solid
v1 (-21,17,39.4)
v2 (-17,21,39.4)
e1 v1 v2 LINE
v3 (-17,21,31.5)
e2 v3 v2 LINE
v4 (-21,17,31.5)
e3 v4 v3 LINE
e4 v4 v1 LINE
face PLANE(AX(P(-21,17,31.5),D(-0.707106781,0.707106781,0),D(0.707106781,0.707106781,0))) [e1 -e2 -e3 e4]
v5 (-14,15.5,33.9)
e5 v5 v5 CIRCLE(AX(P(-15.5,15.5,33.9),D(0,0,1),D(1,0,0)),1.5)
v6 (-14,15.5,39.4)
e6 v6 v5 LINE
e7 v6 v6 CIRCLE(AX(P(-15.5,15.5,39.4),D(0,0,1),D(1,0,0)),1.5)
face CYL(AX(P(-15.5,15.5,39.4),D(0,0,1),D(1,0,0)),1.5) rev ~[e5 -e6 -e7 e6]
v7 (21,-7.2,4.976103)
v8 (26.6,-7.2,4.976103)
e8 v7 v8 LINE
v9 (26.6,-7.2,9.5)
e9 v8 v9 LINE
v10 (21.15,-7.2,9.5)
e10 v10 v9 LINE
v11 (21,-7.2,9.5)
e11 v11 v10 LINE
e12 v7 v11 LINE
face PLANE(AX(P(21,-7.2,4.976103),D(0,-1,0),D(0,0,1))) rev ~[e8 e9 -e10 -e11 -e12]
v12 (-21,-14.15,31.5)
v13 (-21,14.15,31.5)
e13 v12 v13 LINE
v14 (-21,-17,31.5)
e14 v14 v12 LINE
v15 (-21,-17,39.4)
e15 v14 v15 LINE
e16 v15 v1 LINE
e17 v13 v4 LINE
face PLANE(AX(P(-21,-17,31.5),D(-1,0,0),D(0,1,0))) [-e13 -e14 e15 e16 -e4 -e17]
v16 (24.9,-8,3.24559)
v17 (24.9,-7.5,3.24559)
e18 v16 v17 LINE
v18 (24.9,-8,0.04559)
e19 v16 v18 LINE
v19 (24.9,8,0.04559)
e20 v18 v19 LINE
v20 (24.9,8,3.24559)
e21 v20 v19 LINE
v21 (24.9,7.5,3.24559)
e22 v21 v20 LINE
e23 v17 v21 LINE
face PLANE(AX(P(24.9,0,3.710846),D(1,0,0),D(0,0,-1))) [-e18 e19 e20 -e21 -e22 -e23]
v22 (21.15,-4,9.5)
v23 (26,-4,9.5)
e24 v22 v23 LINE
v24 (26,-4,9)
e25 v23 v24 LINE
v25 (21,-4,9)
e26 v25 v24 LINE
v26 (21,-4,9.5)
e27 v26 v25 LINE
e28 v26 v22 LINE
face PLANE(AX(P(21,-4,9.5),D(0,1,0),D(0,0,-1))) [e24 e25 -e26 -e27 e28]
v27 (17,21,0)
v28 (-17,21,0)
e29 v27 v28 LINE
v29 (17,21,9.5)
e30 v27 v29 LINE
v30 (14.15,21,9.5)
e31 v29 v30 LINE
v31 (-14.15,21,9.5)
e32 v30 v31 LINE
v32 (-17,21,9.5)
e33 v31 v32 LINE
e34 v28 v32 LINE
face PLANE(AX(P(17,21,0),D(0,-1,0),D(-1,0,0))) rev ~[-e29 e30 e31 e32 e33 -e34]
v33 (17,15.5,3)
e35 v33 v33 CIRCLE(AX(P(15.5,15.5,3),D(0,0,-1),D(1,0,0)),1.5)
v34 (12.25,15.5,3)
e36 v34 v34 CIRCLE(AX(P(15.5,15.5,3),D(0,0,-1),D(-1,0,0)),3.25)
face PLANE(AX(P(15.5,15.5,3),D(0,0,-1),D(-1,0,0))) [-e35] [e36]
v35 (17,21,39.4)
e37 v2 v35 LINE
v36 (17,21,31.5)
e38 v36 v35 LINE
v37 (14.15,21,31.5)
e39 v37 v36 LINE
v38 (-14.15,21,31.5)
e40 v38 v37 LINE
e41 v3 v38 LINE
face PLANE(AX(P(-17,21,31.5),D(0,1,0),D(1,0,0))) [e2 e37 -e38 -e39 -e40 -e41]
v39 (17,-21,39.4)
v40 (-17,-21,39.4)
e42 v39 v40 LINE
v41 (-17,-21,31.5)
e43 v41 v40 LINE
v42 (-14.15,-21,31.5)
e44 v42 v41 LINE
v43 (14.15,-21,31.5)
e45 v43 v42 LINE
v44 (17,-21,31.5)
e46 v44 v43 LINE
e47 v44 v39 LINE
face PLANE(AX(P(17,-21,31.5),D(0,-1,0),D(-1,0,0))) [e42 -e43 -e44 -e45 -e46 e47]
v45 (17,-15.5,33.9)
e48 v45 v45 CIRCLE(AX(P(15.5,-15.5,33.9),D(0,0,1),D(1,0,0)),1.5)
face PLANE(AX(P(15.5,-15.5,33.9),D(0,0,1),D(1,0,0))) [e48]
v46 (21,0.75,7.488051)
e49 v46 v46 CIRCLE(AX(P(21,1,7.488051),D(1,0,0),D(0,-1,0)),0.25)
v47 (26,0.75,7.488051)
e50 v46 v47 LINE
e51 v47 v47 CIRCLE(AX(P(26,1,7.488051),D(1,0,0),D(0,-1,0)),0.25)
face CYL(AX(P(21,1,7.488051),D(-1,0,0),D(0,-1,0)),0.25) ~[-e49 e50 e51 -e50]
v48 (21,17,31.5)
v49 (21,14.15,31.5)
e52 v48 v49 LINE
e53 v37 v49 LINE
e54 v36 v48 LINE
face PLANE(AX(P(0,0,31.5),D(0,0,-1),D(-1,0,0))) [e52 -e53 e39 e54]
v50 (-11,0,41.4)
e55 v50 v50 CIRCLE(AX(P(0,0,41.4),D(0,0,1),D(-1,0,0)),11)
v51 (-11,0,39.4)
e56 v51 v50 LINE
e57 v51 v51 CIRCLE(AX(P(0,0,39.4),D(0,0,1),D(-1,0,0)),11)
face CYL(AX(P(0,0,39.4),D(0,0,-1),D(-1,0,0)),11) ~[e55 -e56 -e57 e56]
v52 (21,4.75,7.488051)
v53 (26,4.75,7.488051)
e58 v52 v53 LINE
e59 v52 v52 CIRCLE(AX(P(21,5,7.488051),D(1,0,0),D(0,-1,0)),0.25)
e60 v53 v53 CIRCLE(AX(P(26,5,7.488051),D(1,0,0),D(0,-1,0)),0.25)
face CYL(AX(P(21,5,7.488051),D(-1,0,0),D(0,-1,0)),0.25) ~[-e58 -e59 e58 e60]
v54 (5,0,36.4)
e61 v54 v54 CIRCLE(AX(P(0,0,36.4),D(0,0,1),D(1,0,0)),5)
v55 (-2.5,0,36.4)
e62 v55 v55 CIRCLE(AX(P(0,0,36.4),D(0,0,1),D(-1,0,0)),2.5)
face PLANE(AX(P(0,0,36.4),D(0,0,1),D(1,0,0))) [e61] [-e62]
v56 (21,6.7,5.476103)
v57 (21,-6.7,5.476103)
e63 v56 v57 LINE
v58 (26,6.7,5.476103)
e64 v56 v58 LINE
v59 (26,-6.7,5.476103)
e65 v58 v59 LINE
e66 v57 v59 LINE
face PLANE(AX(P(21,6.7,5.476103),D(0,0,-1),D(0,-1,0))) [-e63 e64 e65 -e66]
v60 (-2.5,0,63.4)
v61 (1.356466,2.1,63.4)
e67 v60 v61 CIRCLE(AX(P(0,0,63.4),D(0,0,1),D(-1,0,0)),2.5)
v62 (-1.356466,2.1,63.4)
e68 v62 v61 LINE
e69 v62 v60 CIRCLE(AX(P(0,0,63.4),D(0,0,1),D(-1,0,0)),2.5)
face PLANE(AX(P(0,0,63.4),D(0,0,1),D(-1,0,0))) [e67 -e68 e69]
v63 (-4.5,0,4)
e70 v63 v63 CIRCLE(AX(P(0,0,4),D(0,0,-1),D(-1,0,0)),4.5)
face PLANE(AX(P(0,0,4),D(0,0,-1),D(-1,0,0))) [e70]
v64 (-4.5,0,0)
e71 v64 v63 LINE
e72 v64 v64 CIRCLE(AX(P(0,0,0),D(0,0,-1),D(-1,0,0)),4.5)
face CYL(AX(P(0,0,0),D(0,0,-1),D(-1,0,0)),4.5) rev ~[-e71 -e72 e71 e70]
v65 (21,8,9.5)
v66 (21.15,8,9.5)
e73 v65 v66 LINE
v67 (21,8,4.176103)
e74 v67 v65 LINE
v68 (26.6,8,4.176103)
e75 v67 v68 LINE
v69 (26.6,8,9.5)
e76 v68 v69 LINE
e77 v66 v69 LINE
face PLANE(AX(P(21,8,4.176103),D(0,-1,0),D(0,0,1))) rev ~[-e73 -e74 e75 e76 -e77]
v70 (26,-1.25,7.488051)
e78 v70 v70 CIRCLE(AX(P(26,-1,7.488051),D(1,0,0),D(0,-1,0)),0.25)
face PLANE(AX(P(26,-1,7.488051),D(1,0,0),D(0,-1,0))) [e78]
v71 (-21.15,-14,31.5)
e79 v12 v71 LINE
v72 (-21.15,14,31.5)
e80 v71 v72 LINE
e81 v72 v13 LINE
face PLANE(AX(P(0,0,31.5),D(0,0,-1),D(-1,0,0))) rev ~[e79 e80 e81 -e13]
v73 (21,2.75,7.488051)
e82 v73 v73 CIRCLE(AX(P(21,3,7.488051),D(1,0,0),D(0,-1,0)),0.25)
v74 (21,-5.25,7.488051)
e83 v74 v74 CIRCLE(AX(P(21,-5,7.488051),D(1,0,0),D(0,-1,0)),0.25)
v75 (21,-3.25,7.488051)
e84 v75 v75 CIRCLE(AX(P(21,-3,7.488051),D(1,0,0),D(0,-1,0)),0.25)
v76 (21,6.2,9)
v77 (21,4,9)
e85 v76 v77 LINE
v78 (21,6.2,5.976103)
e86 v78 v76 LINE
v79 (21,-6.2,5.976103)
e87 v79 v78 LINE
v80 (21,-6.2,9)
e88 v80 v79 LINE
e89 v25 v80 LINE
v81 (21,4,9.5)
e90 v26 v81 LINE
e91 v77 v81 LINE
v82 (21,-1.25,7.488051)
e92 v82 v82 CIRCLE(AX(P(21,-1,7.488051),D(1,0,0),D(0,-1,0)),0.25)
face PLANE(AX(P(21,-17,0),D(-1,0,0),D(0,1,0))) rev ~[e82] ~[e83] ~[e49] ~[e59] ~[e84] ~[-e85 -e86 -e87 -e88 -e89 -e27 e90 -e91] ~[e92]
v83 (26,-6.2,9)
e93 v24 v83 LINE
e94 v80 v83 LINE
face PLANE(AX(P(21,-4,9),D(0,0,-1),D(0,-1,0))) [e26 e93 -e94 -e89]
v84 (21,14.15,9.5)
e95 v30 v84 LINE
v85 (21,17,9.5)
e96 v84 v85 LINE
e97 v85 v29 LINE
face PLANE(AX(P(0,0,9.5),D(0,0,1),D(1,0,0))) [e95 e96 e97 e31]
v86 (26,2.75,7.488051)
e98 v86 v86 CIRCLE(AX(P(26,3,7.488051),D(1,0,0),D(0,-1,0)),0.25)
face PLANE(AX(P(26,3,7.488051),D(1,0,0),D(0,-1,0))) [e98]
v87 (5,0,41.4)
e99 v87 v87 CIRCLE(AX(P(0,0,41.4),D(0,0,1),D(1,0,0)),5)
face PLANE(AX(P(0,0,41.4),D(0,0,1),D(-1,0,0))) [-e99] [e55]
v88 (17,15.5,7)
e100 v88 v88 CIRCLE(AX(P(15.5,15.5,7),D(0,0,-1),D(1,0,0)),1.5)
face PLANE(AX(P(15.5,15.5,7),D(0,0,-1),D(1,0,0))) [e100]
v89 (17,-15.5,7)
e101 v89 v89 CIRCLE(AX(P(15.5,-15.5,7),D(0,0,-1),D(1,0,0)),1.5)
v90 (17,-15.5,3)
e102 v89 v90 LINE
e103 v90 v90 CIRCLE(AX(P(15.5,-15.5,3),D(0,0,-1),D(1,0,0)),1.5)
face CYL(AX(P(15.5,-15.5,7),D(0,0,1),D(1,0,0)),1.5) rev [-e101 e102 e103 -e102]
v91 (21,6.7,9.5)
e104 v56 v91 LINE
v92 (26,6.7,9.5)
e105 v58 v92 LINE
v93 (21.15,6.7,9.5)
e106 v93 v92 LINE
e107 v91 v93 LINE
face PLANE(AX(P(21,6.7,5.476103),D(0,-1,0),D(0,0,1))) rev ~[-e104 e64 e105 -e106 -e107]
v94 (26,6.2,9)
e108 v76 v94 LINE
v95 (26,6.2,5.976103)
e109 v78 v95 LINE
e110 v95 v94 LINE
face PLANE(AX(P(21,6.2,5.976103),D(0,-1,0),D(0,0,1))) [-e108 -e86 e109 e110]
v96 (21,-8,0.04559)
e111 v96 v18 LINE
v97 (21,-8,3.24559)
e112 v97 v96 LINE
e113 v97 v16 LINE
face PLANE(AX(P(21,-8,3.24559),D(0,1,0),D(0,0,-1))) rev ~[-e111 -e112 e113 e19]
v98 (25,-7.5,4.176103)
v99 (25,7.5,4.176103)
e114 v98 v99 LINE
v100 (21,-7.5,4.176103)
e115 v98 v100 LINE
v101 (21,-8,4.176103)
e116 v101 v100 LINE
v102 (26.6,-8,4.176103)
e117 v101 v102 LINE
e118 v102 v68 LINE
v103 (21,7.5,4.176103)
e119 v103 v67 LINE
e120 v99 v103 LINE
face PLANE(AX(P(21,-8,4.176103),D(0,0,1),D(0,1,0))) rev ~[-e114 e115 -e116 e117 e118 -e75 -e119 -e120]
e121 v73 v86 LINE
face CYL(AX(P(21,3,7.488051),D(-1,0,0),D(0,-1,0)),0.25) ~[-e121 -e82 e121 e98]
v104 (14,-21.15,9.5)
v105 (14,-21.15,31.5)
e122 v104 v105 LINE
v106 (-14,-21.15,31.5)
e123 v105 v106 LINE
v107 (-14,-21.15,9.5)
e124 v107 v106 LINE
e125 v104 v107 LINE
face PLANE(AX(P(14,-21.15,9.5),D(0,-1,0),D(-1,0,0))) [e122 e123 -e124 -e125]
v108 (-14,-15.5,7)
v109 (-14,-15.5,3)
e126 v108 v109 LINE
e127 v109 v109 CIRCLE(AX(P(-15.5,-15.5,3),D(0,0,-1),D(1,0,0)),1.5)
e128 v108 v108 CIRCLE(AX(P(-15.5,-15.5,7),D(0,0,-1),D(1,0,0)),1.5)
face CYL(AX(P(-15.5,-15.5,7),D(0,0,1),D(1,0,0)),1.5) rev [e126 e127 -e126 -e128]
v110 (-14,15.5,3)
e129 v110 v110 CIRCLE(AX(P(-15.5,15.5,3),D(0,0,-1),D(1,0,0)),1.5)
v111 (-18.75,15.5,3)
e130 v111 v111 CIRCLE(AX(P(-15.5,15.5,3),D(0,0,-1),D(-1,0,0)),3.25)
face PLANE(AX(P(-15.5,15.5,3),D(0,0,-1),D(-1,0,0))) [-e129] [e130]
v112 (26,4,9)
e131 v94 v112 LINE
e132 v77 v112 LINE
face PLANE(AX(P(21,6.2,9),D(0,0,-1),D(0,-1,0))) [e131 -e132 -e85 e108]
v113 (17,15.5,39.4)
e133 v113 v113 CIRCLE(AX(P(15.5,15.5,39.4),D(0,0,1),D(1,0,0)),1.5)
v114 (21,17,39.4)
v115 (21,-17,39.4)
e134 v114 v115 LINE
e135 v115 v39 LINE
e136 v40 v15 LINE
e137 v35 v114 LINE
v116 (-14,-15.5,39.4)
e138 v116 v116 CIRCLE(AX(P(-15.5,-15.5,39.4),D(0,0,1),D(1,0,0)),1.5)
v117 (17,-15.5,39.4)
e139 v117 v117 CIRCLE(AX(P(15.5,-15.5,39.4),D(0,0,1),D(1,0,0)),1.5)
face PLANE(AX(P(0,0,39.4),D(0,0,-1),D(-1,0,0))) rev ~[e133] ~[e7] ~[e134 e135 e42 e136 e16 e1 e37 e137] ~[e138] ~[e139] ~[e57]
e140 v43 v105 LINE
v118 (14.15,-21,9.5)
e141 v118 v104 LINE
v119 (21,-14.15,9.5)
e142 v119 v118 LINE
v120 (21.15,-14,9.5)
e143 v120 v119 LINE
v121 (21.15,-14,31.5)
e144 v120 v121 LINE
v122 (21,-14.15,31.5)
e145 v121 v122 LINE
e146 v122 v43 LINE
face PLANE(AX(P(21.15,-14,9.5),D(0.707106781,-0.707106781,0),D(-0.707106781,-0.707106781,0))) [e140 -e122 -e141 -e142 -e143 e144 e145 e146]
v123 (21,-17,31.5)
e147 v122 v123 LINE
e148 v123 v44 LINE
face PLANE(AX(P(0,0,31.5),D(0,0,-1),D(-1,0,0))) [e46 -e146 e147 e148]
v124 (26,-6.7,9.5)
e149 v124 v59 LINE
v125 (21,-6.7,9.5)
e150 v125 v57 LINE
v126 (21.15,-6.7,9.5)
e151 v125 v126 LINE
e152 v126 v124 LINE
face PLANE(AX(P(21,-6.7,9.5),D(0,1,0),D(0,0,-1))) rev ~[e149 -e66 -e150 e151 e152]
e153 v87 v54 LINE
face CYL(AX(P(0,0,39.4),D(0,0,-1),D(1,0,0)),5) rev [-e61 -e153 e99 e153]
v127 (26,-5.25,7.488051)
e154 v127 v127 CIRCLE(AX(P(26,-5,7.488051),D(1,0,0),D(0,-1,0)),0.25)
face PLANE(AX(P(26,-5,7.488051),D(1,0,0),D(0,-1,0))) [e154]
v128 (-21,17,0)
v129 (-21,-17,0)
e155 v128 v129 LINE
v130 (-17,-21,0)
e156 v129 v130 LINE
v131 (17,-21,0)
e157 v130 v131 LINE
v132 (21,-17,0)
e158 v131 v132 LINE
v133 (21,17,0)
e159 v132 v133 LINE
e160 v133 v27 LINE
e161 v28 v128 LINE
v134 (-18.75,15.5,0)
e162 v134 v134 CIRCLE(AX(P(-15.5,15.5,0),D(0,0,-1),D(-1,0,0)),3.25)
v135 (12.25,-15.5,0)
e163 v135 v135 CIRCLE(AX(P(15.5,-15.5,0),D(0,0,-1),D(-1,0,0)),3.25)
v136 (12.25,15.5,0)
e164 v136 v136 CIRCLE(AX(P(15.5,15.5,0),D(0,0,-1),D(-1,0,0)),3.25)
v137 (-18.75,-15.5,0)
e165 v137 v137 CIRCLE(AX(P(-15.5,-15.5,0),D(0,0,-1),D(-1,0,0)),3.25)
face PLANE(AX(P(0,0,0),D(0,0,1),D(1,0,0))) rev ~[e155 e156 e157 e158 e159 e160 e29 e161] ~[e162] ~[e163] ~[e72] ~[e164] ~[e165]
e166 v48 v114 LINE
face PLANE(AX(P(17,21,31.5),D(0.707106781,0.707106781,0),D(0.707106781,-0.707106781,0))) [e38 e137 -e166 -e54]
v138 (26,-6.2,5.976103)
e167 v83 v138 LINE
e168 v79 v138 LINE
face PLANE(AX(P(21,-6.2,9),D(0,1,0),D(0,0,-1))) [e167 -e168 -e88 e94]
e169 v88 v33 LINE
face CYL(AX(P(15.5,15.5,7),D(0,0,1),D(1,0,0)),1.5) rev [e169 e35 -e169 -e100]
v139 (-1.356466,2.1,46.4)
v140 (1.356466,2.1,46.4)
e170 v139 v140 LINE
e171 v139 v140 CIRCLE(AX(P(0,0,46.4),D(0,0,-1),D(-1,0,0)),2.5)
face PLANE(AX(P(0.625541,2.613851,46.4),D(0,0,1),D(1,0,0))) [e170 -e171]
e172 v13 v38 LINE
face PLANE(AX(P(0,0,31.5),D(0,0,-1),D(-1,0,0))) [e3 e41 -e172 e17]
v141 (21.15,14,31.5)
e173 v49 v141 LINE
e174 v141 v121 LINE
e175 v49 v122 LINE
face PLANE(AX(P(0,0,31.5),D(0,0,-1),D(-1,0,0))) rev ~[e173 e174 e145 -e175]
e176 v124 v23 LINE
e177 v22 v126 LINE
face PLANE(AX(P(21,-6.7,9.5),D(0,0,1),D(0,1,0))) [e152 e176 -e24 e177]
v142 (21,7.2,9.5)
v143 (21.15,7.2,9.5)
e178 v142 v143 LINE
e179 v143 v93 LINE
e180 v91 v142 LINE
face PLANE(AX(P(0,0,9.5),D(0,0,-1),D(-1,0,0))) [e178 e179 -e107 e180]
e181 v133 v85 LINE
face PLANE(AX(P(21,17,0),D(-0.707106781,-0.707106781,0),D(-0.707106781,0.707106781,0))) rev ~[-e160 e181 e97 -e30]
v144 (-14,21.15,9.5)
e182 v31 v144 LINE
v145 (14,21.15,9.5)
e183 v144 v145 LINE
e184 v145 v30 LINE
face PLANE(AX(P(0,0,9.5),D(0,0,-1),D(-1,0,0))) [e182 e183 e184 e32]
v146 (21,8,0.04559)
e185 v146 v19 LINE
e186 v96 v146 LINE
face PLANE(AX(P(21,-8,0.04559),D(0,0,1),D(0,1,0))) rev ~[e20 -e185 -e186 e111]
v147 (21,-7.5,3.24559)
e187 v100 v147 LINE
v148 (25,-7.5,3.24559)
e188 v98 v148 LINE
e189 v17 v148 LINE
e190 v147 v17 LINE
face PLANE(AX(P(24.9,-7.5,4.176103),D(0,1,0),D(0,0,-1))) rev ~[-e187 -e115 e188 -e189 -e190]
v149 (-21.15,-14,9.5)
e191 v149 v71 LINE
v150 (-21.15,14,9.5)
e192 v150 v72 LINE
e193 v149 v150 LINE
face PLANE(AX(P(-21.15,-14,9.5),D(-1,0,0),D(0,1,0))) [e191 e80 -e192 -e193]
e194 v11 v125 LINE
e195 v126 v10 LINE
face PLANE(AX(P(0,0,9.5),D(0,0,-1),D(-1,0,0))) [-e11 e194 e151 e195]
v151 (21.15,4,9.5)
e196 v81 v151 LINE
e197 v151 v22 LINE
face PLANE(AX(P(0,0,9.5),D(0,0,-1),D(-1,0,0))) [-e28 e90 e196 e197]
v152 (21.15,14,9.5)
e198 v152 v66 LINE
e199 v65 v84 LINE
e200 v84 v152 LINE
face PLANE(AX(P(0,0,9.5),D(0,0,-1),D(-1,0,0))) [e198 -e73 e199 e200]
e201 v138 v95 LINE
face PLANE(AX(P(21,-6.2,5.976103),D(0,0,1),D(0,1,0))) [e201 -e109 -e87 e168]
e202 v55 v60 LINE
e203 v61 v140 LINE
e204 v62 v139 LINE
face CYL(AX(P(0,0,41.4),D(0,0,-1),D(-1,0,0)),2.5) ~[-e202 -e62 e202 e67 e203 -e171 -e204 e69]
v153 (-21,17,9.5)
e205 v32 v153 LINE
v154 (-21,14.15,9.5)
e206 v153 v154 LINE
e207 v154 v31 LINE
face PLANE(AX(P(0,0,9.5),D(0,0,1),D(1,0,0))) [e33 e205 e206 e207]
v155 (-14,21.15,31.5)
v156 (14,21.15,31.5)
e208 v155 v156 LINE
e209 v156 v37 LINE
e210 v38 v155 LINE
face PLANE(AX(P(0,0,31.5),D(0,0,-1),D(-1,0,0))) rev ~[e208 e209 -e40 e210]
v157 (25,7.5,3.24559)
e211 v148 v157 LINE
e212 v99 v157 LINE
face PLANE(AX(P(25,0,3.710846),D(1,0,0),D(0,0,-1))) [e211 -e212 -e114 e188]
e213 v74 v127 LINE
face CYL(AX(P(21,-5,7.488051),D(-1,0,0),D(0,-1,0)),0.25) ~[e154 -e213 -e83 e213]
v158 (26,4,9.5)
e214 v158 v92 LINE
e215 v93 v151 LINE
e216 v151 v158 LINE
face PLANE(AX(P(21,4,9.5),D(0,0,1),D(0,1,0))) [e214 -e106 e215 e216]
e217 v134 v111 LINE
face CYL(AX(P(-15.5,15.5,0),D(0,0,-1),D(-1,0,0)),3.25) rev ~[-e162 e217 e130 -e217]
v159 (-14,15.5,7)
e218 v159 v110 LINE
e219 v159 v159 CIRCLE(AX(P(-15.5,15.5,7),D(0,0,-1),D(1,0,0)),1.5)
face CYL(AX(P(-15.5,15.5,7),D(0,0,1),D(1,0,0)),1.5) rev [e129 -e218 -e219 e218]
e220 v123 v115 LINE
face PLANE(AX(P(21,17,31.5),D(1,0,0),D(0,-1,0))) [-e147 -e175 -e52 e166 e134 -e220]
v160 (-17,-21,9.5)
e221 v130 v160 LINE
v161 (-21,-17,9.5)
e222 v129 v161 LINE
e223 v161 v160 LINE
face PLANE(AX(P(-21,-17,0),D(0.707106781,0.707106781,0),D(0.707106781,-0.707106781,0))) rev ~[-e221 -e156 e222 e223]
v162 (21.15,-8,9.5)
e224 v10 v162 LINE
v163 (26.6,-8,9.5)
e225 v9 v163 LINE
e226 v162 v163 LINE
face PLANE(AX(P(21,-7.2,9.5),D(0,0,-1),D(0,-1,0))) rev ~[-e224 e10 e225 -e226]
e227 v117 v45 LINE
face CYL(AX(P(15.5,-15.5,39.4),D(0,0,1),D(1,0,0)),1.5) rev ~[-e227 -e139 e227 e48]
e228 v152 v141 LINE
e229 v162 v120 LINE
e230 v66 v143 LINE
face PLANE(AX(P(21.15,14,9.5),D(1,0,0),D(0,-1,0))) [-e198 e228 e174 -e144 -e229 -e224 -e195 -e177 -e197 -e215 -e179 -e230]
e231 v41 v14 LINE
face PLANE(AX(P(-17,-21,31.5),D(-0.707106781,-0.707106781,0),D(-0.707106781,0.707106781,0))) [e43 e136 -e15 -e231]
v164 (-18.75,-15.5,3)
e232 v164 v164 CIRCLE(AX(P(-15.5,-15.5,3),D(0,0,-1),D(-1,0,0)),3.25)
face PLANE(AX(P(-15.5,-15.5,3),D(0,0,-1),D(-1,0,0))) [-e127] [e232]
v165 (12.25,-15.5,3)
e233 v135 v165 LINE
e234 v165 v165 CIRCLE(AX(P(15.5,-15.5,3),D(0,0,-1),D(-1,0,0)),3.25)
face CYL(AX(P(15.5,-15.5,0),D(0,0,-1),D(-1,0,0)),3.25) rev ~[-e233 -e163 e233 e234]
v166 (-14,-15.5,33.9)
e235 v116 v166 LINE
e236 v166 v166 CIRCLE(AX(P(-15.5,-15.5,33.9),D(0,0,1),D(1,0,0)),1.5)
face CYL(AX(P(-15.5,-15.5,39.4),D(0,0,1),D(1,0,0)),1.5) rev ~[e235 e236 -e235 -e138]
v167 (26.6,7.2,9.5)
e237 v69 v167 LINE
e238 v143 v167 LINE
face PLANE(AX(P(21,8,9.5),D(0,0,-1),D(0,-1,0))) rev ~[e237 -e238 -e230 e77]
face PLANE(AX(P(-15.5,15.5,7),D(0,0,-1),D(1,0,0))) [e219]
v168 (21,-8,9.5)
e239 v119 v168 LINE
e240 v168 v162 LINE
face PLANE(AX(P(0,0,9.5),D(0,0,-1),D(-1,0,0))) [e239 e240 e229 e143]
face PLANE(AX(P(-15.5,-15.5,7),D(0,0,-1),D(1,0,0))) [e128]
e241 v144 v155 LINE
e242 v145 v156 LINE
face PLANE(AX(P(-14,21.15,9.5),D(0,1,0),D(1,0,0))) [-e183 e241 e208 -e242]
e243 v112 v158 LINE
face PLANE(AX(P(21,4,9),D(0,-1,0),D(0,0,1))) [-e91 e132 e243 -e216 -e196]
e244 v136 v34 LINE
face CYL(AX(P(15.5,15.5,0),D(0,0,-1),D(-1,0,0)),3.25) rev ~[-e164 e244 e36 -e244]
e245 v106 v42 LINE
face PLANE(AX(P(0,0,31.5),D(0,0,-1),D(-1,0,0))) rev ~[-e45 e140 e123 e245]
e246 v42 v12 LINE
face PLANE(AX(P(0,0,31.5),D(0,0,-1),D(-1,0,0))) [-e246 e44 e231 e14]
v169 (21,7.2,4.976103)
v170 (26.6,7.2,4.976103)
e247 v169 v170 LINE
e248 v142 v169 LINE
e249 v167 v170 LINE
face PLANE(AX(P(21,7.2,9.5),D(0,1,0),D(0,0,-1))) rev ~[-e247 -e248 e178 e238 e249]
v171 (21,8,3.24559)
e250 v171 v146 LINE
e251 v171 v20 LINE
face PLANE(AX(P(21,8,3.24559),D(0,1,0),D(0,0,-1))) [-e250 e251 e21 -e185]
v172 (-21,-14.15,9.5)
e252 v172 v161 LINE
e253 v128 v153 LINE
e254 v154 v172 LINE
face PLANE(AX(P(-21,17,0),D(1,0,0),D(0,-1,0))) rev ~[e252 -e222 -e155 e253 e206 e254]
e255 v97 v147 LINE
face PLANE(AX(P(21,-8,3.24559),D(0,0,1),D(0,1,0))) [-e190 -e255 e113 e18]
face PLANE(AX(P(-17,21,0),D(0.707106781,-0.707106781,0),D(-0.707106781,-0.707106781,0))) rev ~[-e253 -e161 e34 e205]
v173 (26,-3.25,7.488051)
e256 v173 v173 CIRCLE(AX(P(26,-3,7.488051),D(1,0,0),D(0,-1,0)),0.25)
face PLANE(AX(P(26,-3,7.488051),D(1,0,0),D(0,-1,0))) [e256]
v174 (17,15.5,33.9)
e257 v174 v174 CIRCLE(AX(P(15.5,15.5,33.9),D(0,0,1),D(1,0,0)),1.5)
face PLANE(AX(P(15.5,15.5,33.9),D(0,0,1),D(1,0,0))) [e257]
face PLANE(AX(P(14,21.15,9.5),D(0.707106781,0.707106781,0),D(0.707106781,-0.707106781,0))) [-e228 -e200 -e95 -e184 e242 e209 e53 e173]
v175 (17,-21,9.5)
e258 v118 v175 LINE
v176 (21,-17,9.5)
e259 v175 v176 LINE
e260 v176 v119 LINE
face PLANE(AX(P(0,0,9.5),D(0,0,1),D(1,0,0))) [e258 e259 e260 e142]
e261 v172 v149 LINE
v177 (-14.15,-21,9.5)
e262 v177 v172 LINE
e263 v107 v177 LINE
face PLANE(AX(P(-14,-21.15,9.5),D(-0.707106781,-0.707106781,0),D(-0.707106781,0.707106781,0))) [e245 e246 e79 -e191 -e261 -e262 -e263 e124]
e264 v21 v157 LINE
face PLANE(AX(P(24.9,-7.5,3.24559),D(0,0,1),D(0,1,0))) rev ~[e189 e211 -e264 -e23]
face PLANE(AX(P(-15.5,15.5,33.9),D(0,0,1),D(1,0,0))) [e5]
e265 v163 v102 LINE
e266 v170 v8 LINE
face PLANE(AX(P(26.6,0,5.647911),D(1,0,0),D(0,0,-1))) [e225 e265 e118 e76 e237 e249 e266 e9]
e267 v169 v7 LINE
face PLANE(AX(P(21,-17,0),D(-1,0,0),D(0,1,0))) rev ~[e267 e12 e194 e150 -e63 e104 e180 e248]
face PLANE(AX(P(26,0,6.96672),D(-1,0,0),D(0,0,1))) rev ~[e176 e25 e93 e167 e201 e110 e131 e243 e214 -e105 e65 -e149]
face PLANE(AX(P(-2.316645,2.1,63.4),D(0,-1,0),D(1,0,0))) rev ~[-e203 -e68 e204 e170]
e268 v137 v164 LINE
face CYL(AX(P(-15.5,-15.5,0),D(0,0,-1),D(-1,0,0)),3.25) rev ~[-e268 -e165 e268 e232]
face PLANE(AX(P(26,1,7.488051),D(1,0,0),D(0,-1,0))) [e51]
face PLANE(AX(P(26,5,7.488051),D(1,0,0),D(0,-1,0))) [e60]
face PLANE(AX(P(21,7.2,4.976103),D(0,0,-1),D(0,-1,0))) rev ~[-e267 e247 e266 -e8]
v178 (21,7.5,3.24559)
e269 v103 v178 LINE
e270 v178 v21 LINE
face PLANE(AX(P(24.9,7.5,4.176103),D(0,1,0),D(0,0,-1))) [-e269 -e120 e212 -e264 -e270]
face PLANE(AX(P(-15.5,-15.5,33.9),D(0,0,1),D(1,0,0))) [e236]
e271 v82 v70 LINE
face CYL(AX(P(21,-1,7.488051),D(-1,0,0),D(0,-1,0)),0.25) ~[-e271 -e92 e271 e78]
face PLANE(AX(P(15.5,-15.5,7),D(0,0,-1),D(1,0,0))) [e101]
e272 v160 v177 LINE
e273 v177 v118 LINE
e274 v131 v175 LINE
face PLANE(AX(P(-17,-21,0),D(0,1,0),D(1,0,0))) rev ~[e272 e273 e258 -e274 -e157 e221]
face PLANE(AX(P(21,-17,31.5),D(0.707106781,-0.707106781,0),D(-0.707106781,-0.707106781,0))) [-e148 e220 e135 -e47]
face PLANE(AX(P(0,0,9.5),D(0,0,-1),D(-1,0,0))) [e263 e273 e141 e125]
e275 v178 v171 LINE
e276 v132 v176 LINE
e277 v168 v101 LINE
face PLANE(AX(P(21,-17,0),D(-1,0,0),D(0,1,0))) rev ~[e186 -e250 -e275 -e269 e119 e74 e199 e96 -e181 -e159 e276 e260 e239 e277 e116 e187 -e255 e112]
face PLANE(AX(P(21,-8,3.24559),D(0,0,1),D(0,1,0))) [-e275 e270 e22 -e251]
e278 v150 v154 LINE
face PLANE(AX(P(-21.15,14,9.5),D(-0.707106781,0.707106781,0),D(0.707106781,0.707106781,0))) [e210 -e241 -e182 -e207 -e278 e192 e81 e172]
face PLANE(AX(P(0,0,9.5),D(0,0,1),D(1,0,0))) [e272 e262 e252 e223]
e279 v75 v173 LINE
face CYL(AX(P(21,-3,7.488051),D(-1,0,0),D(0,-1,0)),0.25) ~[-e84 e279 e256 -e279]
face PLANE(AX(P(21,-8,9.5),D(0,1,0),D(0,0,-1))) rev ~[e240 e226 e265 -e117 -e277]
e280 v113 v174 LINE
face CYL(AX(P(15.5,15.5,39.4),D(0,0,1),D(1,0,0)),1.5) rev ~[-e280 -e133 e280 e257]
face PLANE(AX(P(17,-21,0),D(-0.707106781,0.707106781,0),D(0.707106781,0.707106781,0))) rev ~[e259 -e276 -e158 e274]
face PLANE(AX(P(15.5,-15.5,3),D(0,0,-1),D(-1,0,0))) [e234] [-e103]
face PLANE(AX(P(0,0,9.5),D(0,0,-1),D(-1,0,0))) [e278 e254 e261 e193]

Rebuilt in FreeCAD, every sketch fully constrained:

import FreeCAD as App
import Part
import Sketcher
Q = App.Units.Quantity

doc = App.newDocument("Part")
body = doc.addObject("PartDesign::Body", "Body")

sketch1 = body.newObject("Sketcher::SketchObject", "Sketch")
sketch1.AttachmentSupport = (doc.getObject("XY_Plane"), [""])
sketch1.MapMode = "FlatFace"
sketch1.addGeometry([
    Part.LineSegment(App.Vector(-17, 21, 0), App.Vector(-21, 17, 0)),
    Part.LineSegment(App.Vector(-21, 17, 0), App.Vector(-21, -17, 0)),
    Part.LineSegment(App.Vector(-21, -17, 0), App.Vector(-17, -21, 0)),
    Part.LineSegment(App.Vector(-17, -21, 0), App.Vector(17, -21, 0)),
    Part.LineSegment(App.Vector(17, -21, 0), App.Vector(21, -17, 0)),
    Part.LineSegment(App.Vector(21, -17, 0), App.Vector(21, 17, 0)),
    Part.LineSegment(App.Vector(21, 17, 0), App.Vector(17, 21, 0)),
    Part.LineSegment(App.Vector(17, 21, 0), App.Vector(-17, 21, 0)),
], False)
sketch1.addConstraint([
    Sketcher.Constraint("Coincident", 0, 2, 1, 1),
    Sketcher.Constraint("Coincident", 1, 2, 2, 1),
    Sketcher.Constraint("Coincident", 2, 2, 3, 1),
    Sketcher.Constraint("Coincident", 3, 2, 4, 1),
    Sketcher.Constraint("Coincident", 4, 2, 5, 1),
    Sketcher.Constraint("Coincident", 5, 2, 6, 1),
    Sketcher.Constraint("Coincident", 6, 2, 7, 1),
    Sketcher.Constraint("Coincident", 7, 2, 0, 1),
    Sketcher.Constraint("Vertical", 1),
    Sketcher.Constraint("Horizontal", 3),
    Sketcher.Constraint("Vertical", 5),
    Sketcher.Constraint("Horizontal", 7),
    Sketcher.Constraint("Symmetric", 0, 2, 4, 2, -1, 1),
    Sketcher.Constraint("Symmetric", 2, 2, 6, 2, -1, 1),
    Sketcher.Constraint("Perpendicular", 0, 2),
    Sketcher.Constraint("Perpendicular", 2, 4),
    Sketcher.Constraint("Perpendicular", 4, 6),
    Sketcher.Constraint("Horizontal", 1, 2, 4, 2),
    Sketcher.Constraint("Vertical", 3, 2, 6, 2),
    Sketcher.Constraint("Equal", 7, 1),
    Sketcher.Constraint("DistanceX", 3, 1, 3, 2, Q("34 mm")),
    Sketcher.Constraint("DistanceX", 0, 2, -1, 1, Q("21 mm")),
])
pad1 = body.newObject("PartDesign::Pad", "Pad")
pad1.Profile = sketch1
pad1.Length = 9.5

sketch2 = body.newObject("Sketcher::SketchObject", "Sketch001")
sketch2.AttachmentSupport = (doc.getObject("XY_Plane"), [""])
sketch2.MapMode = "FlatFace"
sketch2.AttachmentOffset = App.Placement(App.Vector(0, 0, 9.5), App.Rotation())
sketch2.addGeometry([
    Part.LineSegment(App.Vector(21.15, 14, 0), App.Vector(14, 21.15, 0)),
    Part.LineSegment(App.Vector(14, 21.15, 0), App.Vector(-14, 21.15, 0)),
    Part.LineSegment(App.Vector(-14, 21.15, 0), App.Vector(-21.15, 14, 0)),
    Part.LineSegment(App.Vector(-21.15, 14, 0), App.Vector(-21.15, -14, 0)),
    Part.LineSegment(App.Vector(-21.15, -14, 0), App.Vector(-14, -21.15, 0)),
    Part.LineSegment(App.Vector(-14, -21.15, 0), App.Vector(14, -21.15, 0)),
    Part.LineSegment(App.Vector(14, -21.15, 0), App.Vector(21.15, -14, 0)),
    Part.LineSegment(App.Vector(21.15, -14, 0), App.Vector(21.15, 14, 0)),
], False)
sketch2.addConstraint([
    Sketcher.Constraint("Coincident", 0, 2, 1, 1),
    Sketcher.Constraint("Coincident", 1, 2, 2, 1),
    Sketcher.Constraint("Coincident", 2, 2, 3, 1),
    Sketcher.Constraint("Coincident", 3, 2, 4, 1),
    Sketcher.Constraint("Coincident", 4, 2, 5, 1),
    Sketcher.Constraint("Coincident", 5, 2, 6, 1),
    Sketcher.Constraint("Coincident", 6, 2, 7, 1),
    Sketcher.Constraint("Coincident", 7, 2, 0, 1),
    Sketcher.Constraint("Horizontal", 1),
    Sketcher.Constraint("Vertical", 3),
    Sketcher.Constraint("Horizontal", 5),
    Sketcher.Constraint("Vertical", 7),
    Sketcher.Constraint("Symmetric", 0, 2, 4, 2, -1, 1),
    Sketcher.Constraint("Symmetric", 2, 2, 6, 2, -1, 1),
    Sketcher.Constraint("Perpendicular", 0, 2),
    Sketcher.Constraint("Perpendicular", 2, 4),
    Sketcher.Constraint("Perpendicular", 4, 6),
    Sketcher.Constraint("Horizontal", 3, 2, 6, 2),
    Sketcher.Constraint("Vertical", 1, 2, 4, 2),
    Sketcher.Constraint("Equal", 5, 3),
    Sketcher.Constraint("DistanceX", 1, 2, 1, 1, Q("28 mm")),
    Sketcher.Constraint("DistanceY", 4, 2, 1, 2, Q("42.3 mm")),
])
pad2 = body.newObject("PartDesign::Pad", "Pad001")
pad2.Profile = sketch2
pad2.Length = 22

sketch3 = body.newObject("Sketcher::SketchObject", "Sketch002")
sketch3.AttachmentSupport = (doc.getObject("XY_Plane"), [""])
sketch3.MapMode = "FlatFace"
sketch3.AttachmentOffset = App.Placement(App.Vector(0, 0, 31.5), App.Rotation())
sketch3.addGeometry([
    Part.LineSegment(App.Vector(17, 21, 0), App.Vector(-17, 21, 0)),
    Part.LineSegment(App.Vector(-17, 21, 0), App.Vector(-21, 17, 0)),
    Part.LineSegment(App.Vector(-21, 17, 0), App.Vector(-21, -17, 0)),
    Part.LineSegment(App.Vector(-21, -17, 0), App.Vector(-17, -21, 0)),
    Part.LineSegment(App.Vector(-17, -21, 0), App.Vector(17, -21, 0)),
    Part.LineSegment(App.Vector(17, -21, 0), App.Vector(21, -17, 0)),
    Part.LineSegment(App.Vector(21, -17, 0), App.Vector(21, 17, 0)),
    Part.LineSegment(App.Vector(21, 17, 0), App.Vector(17, 21, 0)),
], False)
sketch3.addConstraint([
    Sketcher.Constraint("Coincident", 0, 2, 1, 1),
    Sketcher.Constraint("Coincident", 1, 2, 2, 1),
    Sketcher.Constraint("Coincident", 2, 2, 3, 1),
    Sketcher.Constraint("Coincident", 3, 2, 4, 1),
    Sketcher.Constraint("Coincident", 4, 2, 5, 1),
    Sketcher.Constraint("Coincident", 5, 2, 6, 1),
    Sketcher.Constraint("Coincident", 6, 2, 7, 1),
    Sketcher.Constraint("Coincident", 7, 2, 0, 1),
    Sketcher.Constraint("Horizontal", 0),
    Sketcher.Constraint("Vertical", 2),
    Sketcher.Constraint("Horizontal", 4),
    Sketcher.Constraint("Vertical", 6),
    Sketcher.Constraint("Symmetric", 0, 2, 4, 2, -1, 1),
    Sketcher.Constraint("Symmetric", 1, 2, 5, 2, -1, 1),
    Sketcher.Constraint("Perpendicular", 1, 3),
    Sketcher.Constraint("Perpendicular", 5, 7),
    Sketcher.Constraint("Horizontal", 2, 2, 5, 2),
    Sketcher.Constraint("Horizontal", 1, 2, 6, 2),
    Sketcher.Constraint("Vertical", 0, 2, 3, 2),
    Sketcher.Constraint("Equal", 4, 2),
    Sketcher.Constraint("DistanceX", 0, 2, 0, 1, Q("34 mm")),
    Sketcher.Constraint("DistanceY", -1, 1, 0, 2, Q("21 mm")),
])
pad3 = body.newObject("PartDesign::Pad", "Pad002")
pad3.Profile = sketch3
pad3.Length = 7.9

sketch4 = body.newObject("Sketcher::SketchObject", "Sketch003")
sketch4.AttachmentSupport = (doc.getObject("XY_Plane"), [""])
sketch4.MapMode = "FlatFace"
sketch4.AttachmentOffset = App.Placement(App.Vector(0, 0, 39.4), App.Rotation())
sketch4.addGeometry([
    Part.Circle(App.Vector(0, 0, 0), App.Vector(0, 0, 1), 11),
    Part.Circle(App.Vector(0, 0, 0), App.Vector(0, 0, 1), 5),
], False)
sketch4.addConstraint([
    Sketcher.Constraint("Coincident", 0, 3, -1, 1),
    Sketcher.Constraint("Coincident", 1, 3, -1, 1),
    Sketcher.Constraint("Diameter", 0, Q("22 mm")),
    Sketcher.Constraint("Diameter", 1, Q("10 mm")),
])
pad4 = body.newObject("PartDesign::Pad", "Pad003")
pad4.Profile = sketch4
pad4.Length = 2

sketch5 = body.newObject("Sketcher::SketchObject", "Sketch004")
sketch5.AttachmentSupport = (doc.getObject("XY_Plane"), [""])
sketch5.MapMode = "FlatFace"
sketch5.AttachmentOffset = App.Placement(App.Vector(0, 0, 36.4), App.Rotation())
sketch5.addGeometry(Part.Circle(App.Vector(0, 0, 0), App.Vector(0, 0, 1), 5), False)
sketch5.addConstraint([
    Sketcher.Constraint("Coincident", 0, 3, -1, 1),
    Sketcher.Constraint("Diameter", 0, Q("10 mm")),
])
pocket1 = body.newObject("PartDesign::Pocket", "Pocket")
pocket1.Profile = sketch5
pocket1.Length = 3
pocket1.Reversed = True

sketch6 = body.newObject("Sketcher::SketchObject", "Sketch005")
sketch6.AttachmentSupport = (doc.getObject("XY_Plane"), [""])
sketch6.MapMode = "FlatFace"
sketch6.AttachmentOffset = App.Placement(App.Vector(0, 0, 36.4), App.Rotation())
sketch6.addGeometry(Part.Circle(App.Vector(0, 0, 0), App.Vector(0, 0, 1), 2.5), False)
sketch6.addConstraint([
    Sketcher.Constraint("Coincident", 0, 3, -1, 1),
    Sketcher.Constraint("Diameter", 0, Q("5 mm")),
])
pad5 = body.newObject("PartDesign::Pad", "Pad004")
pad5.Profile = sketch6
pad5.Length = 5

sketch7 = body.newObject("Sketcher::SketchObject", "Sketch006")
sketch7.AttachmentSupport = (doc.getObject("XY_Plane"), [""])
sketch7.MapMode = "FlatFace"
sketch7.AttachmentOffset = App.Placement(App.Vector(0, 0, 41.4), App.Rotation())
sketch7.addGeometry(Part.Circle(App.Vector(0, 0, 0), App.Vector(0, 0, 1), 2.5), False)
sketch7.addConstraint([
    Sketcher.Constraint("Coincident", 0, 3, -1, 1),
    Sketcher.Constraint("Diameter", 0, Q("5 mm")),
])
pad6 = body.newObject("PartDesign::Pad", "Pad005")
pad6.Profile = sketch7
pad6.Length = 22

sketch8 = body.newObject("Sketcher::SketchObject", "Sketch007")
sketch8.AttachmentSupport = (doc.getObject("XY_Plane"), [""])
sketch8.MapMode = "FlatFace"
sketch8.AttachmentOffset = App.Placement(App.Vector(0, 0, 63.4), App.Rotation())
sketch8.addGeometry([
    Part.LineSegment(App.Vector(-2.316645, 2.1, 0), App.Vector(3.697939, 2.1, 0)),
    Part.LineSegment(App.Vector(3.697939, 2.1, 0), App.Vector(-0.123554, 3.991048, 0)),
    Part.LineSegment(App.Vector(-0.123554, 3.991048, 0), App.Vector(-2.316645, 2.1, 0)),
], False)
sketch8.addConstraint([
    Sketcher.Constraint("Coincident", 0, 2, 1, 1),
    Sketcher.Constraint("Coincident", 1, 2, 2, 1),
    Sketcher.Constraint("Coincident", 2, 2, 0, 1),
    Sketcher.Constraint("Horizontal", 0),
    Sketcher.Constraint("DistanceY", -1, 1, 0, 2, Q("2.1 mm")),
    Sketcher.Constraint("Distance", 2, Q("2.895809 mm")),
    Sketcher.Constraint("DistanceX", 0, 1, 0, 2, Q("6.014584 mm")),
    Sketcher.Constraint("DistanceX", -1, 1, 0, 2, Q("3.697939 mm")),
    Sketcher.Constraint("DistanceY", -1, 1, 1, 2, Q("3.991048 mm")),
])
pocket2 = body.newObject("PartDesign::Pocket", "Pocket001")
pocket2.Profile = sketch8
pocket2.Length = 17

sketch9 = body.newObject("Sketcher::SketchObject", "Sketch008")
sketch9.AttachmentSupport = (doc.getObject("YZ_Plane"), [""])
sketch9.MapMode = "FlatFace"
sketch9.AttachmentOffset = App.Placement(App.Vector(0, 0, 21), App.Rotation())
sketch9.addGeometry([
    Part.LineSegment(App.Vector(8, 3.24559, 0), App.Vector(-8, 3.24559, 0)),
    Part.LineSegment(App.Vector(-8, 3.24559, 0), App.Vector(-8, 0.04559, 0)),
    Part.LineSegment(App.Vector(-8, 0.04559, 0), App.Vector(8, 0.04559, 0)),
    Part.LineSegment(App.Vector(8, 0.04559, 0), App.Vector(8, 3.24559, 0)),
], False)
sketch9.addConstraint([
    Sketcher.Constraint("Coincident", 0, 2, 1, 1),
    Sketcher.Constraint("Coincident", 1, 2, 2, 1),
    Sketcher.Constraint("Coincident", 2, 2, 3, 1),
    Sketcher.Constraint("Coincident", 3, 2, 0, 1),
    Sketcher.Constraint("Horizontal", 0),
    Sketcher.Constraint("Vertical", 1),
    Sketcher.Constraint("Horizontal", 2),
    Sketcher.Constraint("Vertical", 3),
    Sketcher.Constraint("DistanceX", 0, 2, 0, 1, Q("16 mm")),
    Sketcher.Constraint("DistanceY", 1, 2, 1, 1, Q("3.2 mm")),
    Sketcher.Constraint("DistanceX", 0, 2, -1, 1, Q("8 mm")),
    Sketcher.Constraint("DistanceY", -1, 1, 0, 2, Q("3.24559 mm")),
])
pad7 = body.newObject("PartDesign::Pad", "Pad006")
pad7.Profile = sketch9
pad7.Length = 3.9

sketch10 = body.newObject("Sketcher::SketchObject", "Sketch009")
sketch10.AttachmentSupport = (doc.getObject("YZ_Plane"), [""])
sketch10.MapMode = "FlatFace"
sketch10.AttachmentOffset = App.Placement(App.Vector(0, 0, 21), App.Rotation())
sketch10.addGeometry([
    Part.LineSegment(App.Vector(7.2, 9.5, 0), App.Vector(7.2, 4.976103, 0)),
    Part.LineSegment(App.Vector(7.2, 4.976103, 0), App.Vector(-7.2, 4.976103, 0)),
    Part.LineSegment(App.Vector(-7.2, 4.976103, 0), App.Vector(-7.2, 9.5, 0)),
    Part.LineSegment(App.Vector(-7.2, 9.5, 0), App.Vector(-8, 9.5, 0)),
    Part.LineSegment(App.Vector(-8, 9.5, 0), App.Vector(-8, 4.176103, 0)),
    Part.LineSegment(App.Vector(-8, 4.176103, 0), App.Vector(8, 4.176103, 0)),
    Part.LineSegment(App.Vector(8, 4.176103, 0), App.Vector(8, 9.5, 0)),
    Part.LineSegment(App.Vector(8, 9.5, 0), App.Vector(7.2, 9.5, 0)),
], False)
sketch10.addConstraint([
    Sketcher.Constraint("Coincident", 0, 2, 1, 1),
    Sketcher.Constraint("Coincident", 1, 2, 2, 1),
    Sketcher.Constraint("Coincident", 2, 2, 3, 1),
    Sketcher.Constraint("Coincident", 3, 2, 4, 1),
    Sketcher.Constraint("Coincident", 4, 2, 5, 1),
    Sketcher.Constraint("Coincident", 5, 2, 6, 1),
    Sketcher.Constraint("Coincident", 6, 2, 7, 1),
    Sketcher.Constraint("Coincident", 7, 2, 0, 1),
    Sketcher.Constraint("Vertical", 0),
    Sketcher.Constraint("Horizontal", 1),
    Sketcher.Constraint("Vertical", 2),
    Sketcher.Constraint("Horizontal", 3),
    Sketcher.Constraint("Vertical", 4),
    Sketcher.Constraint("Horizontal", 5),
    Sketcher.Constraint("Vertical", 6),
    Sketcher.Constraint("Horizontal", 7),
    Sketcher.Constraint("Symmetric", 3, 2, 6, 2, -2),
    Sketcher.Constraint("Equal", 3, 7),
    Sketcher.Constraint("DistanceX", 5, 1, 5, 2, Q("16 mm")),
    Sketcher.Constraint("DistanceX", 1, 2, 1, 1, Q("14.4 mm")),
    Sketcher.Constraint("DistanceY", -1, 1, 2, 2, Q("9.5 mm")),
    Sketcher.Constraint("DistanceY", 4, 2, 1, 2, Q("0.8 mm")),
    Sketcher.Constraint("DistanceY", 0, 2, 0, 1, Q("4.523897 mm")),
])
pad8 = body.newObject("PartDesign::Pad", "Pad007")
pad8.Profile = sketch10
pad8.Length = 5.6

sketch11 = body.newObject("Sketcher::SketchObject", "Sketch010")
sketch11.AttachmentSupport = (doc.getObject("YZ_Plane"), [""])
sketch11.MapMode = "FlatFace"
sketch11.AttachmentOffset = App.Placement(App.Vector(0, 0, 21), App.Rotation())
sketch11.addGeometry([
    Part.LineSegment(App.Vector(7.5, 4.176103, 0), App.Vector(-7.5, 4.176103, 0)),
    Part.LineSegment(App.Vector(-7.5, 4.176103, 0), App.Vector(-7.5, 3.24559, 0)),
    Part.LineSegment(App.Vector(-7.5, 3.24559, 0), App.Vector(7.5, 3.24559, 0)),
    Part.LineSegment(App.Vector(7.5, 3.24559, 0), App.Vector(7.5, 4.176103, 0)),
], False)
sketch11.addConstraint([
    Sketcher.Constraint("Coincident", 0, 2, 1, 1),
    Sketcher.Constraint("Coincident", 1, 2, 2, 1),
    Sketcher.Constraint("Coincident", 2, 2, 3, 1),
    Sketcher.Constraint("Coincident", 3, 2, 0, 1),
    Sketcher.Constraint("Horizontal", 0),
    Sketcher.Constraint("Vertical", 1),
    Sketcher.Constraint("Horizontal", 2),
    Sketcher.Constraint("Vertical", 3),
    Sketcher.Constraint("DistanceX", 0, 2, 0, 1, Q("15 mm")),
    Sketcher.Constraint("DistanceX", 0, 2, -1, 1, Q("7.5 mm")),
    Sketcher.Constraint("DistanceY", 1, 2, 1, 1, Q("0.930513 mm")),
    Sketcher.Constraint("DistanceY", -1, 1, 1, 2, Q("3.24559 mm")),
])
pad9 = body.newObject("PartDesign::Pad", "Pad008")
pad9.Profile = sketch11
pad9.Length = 3.9

sketch12 = body.newObject("Sketcher::SketchObject", "Sketch011")
sketch12.AttachmentSupport = (doc.getObject("YZ_Plane"), [""])
sketch12.MapMode = "FlatFace"
sketch12.AttachmentOffset = App.Placement(App.Vector(0, 0, 24.9), App.Rotation())
sketch12.addGeometry([
    Part.LineSegment(App.Vector(7.5, 4.176103, 0), App.Vector(-7.5, 4.176103, 0)),
    Part.LineSegment(App.Vector(-7.5, 4.176103, 0), App.Vector(-7.5, 3.24559, 0)),
    Part.LineSegment(App.Vector(-7.5, 3.24559, 0), App.Vector(7.5, 3.24559, 0)),
    Part.LineSegment(App.Vector(7.5, 3.24559, 0), App.Vector(7.5, 4.176103, 0)),
], False)
sketch12.addConstraint([
    Sketcher.Constraint("Coincident", 0, 2, 1, 1),
    Sketcher.Constraint("Coincident", 1, 2, 2, 1),
    Sketcher.Constraint("Coincident", 2, 2, 3, 1),
    Sketcher.Constraint("Coincident", 3, 2, 0, 1),
    Sketcher.Constraint("Horizontal", 0),
    Sketcher.Constraint("Vertical", 1),
    Sketcher.Constraint("Horizontal", 2),
    Sketcher.Constraint("Vertical", 3),
    Sketcher.Constraint("DistanceX", 0, 2, 0, 1, Q("15 mm")),
    Sketcher.Constraint("DistanceX", 0, 2, -1, 1, Q("7.5 mm")),
    Sketcher.Constraint("DistanceY", 1, 2, 1, 1, Q("0.930513 mm")),
    Sketcher.Constraint("DistanceY", -1, 1, 1, 2, Q("3.24559 mm")),
])
pad10 = body.newObject("PartDesign::Pad", "Pad009")
pad10.Profile = sketch12
pad10.Length = 0.1

sketch13 = body.newObject("Sketcher::SketchObject", "Sketch012")
sketch13.AttachmentSupport = (doc.getObject("YZ_Plane"), [""])
sketch13.MapMode = "FlatFace"
sketch13.AttachmentOffset = App.Placement(App.Vector(0, 0, 21), App.Rotation())
sketch13.addGeometry([
    Part.LineSegment(App.Vector(6.2, 9, 0), App.Vector(6.2, 5.976103, 0)),
    Part.LineSegment(App.Vector(6.2, 5.976103, 0), App.Vector(-6.2, 5.976103, 0)),
    Part.LineSegment(App.Vector(-6.2, 5.976103, 0), App.Vector(-6.2, 9, 0)),
    Part.LineSegment(App.Vector(-6.2, 9, 0), App.Vector(-4, 9, 0)),
    Part.LineSegment(App.Vector(-4, 9, 0), App.Vector(-4, 9.5, 0)),
    Part.LineSegment(App.Vector(-4, 9.5, 0), App.Vector(-6.7, 9.5, 0)),
    Part.LineSegment(App.Vector(-6.7, 9.5, 0), App.Vector(-6.7, 5.476103, 0)),
    Part.LineSegment(App.Vector(-6.7, 5.476103, 0), App.Vector(6.7, 5.476103, 0)),
    Part.LineSegment(App.Vector(6.7, 5.476103, 0), App.Vector(6.7, 9.5, 0)),
    Part.LineSegment(App.Vector(6.7, 9.5, 0), App.Vector(4, 9.5, 0)),
    Part.LineSegment(App.Vector(4, 9.5, 0), App.Vector(4, 9, 0)),
    Part.LineSegment(App.Vector(4, 9, 0), App.Vector(6.2, 9, 0)),
], False)
sketch13.addConstraint([
    Sketcher.Constraint("Coincident", 0, 2, 1, 1),
    Sketcher.Constraint("Coincident", 1, 2, 2, 1),
    Sketcher.Constraint("Coincident", 2, 2, 3, 1),
    Sketcher.Constraint("Coincident", 3, 2, 4, 1),
    Sketcher.Constraint("Coincident", 4, 2, 5, 1),
    Sketcher.Constraint("Coincident", 5, 2, 6, 1),
    Sketcher.Constraint("Coincident", 6, 2, 7, 1),
    Sketcher.Constraint("Coincident", 7, 2, 8, 1),
    Sketcher.Constraint("Coincident", 8, 2, 9, 1),
    Sketcher.Constraint("Coincident", 9, 2, 10, 1),
    Sketcher.Constraint("Coincident", 10, 2, 11, 1),
    Sketcher.Constraint("Coincident", 11, 2, 0, 1),
    Sketcher.Constraint("Vertical", 0),
    Sketcher.Constraint("Horizontal", 1),
    Sketcher.Constraint("Vertical", 2),
    Sketcher.Constraint("Horizontal", 3),
    Sketcher.Constraint("Vertical", 4),
    Sketcher.Constraint("Horizontal", 5),
    Sketcher.Constraint("Vertical", 6),
    Sketcher.Constraint("Horizontal", 7),
    Sketcher.Constraint("Vertical", 8),
    Sketcher.Constraint("Horizontal", 9),
    Sketcher.Constraint("Vertical", 10),
    Sketcher.Constraint("Horizontal", 11),
    Sketcher.Constraint("Symmetric", 5, 2, 8, 2, -2),
    Sketcher.Constraint("Symmetric", 3, 2, 10, 2, -2),
    Sketcher.Constraint("Equal", 3, 11),
    Sketcher.Constraint("DistanceX", 1, 2, 1, 1, Q("12.4 mm")),
    Sketcher.Constraint("DistanceX", 3, 1, 3, 2, Q("2.2 mm")),
    Sketcher.Constraint("DistanceX", 5, 2, 5, 1, Q("2.7 mm")),
    Sketcher.Constraint("DistanceY", 4, 1, 4, 2, Q("0.5 mm")),
    Sketcher.Constraint("DistanceY", -1, 1, 2, 2, Q("9 mm")),
    Sketcher.Constraint("DistanceY", 6, 2, 1, 2, Q("0.5 mm")),
    Sketcher.Constraint("DistanceY", 0, 2, 0, 1, Q("3.023897 mm")),
])
pad11 = body.newObject("PartDesign::Pad", "Pad010")
pad11.Profile = sketch13
pad11.Length = 5

sketch14 = body.newObject("Sketcher::SketchObject", "Sketch013")
sketch14.AttachmentSupport = (doc.getObject("YZ_Plane"), [""])
sketch14.MapMode = "FlatFace"
sketch14.AttachmentOffset = App.Placement(App.Vector(0, 0, 21), App.Rotation())
sketch14.addGeometry([
    Part.Circle(App.Vector(5, 7.488051, 0), App.Vector(0, 0, 1), 0.25),
    Part.Circle(App.Vector(3, 7.488051, 0), App.Vector(0, 0, 1), 0.25),
    Part.Circle(App.Vector(1, 7.488051, 0), App.Vector(0, 0, 1), 0.25),
    Part.Circle(App.Vector(-1, 7.488051, 0), App.Vector(0, 0, 1), 0.25),
    Part.Circle(App.Vector(-3, 7.488051, 0), App.Vector(0, 0, 1), 0.25),
    Part.Circle(App.Vector(-5, 7.488051, 0), App.Vector(0, 0, 1), 0.25),
], False)
sketch14.addConstraint([
    Sketcher.Constraint("Equal", 0, 1),
    Sketcher.Constraint("Equal", 1, 2),
    Sketcher.Constraint("Equal", 2, 3),
    Sketcher.Constraint("Equal", 3, 4),
    Sketcher.Constraint("Equal", 4, 5),
    Sketcher.Constraint("Symmetric", 2, 3, 3, 3, -2),
    Sketcher.Constraint("Symmetric", 1, 3, 4, 3, -2),
    Sketcher.Constraint("Symmetric", 0, 3, 5, 3, -2),
    Sketcher.Constraint("Horizontal", 0, 3, 1, 3),
    Sketcher.Constraint("Horizontal", 1, 3, 2, 3),
    Sketcher.Constraint("Diameter", 0, Q("0.5 mm")),
    Sketcher.Constraint("DistanceX", -1, 1, 0, 3, Q("5 mm")),
    Sketcher.Constraint("DistanceX", -1, 1, 1, 3, Q("3 mm")),
    Sketcher.Constraint("DistanceX", -1, 1, 2, 3, Q("1 mm")),
    Sketcher.Constraint("DistanceY", -1, 1, 0, 3, Q("7.488051 mm")),
])
pad12 = body.newObject("PartDesign::Pad", "Pad011")
pad12.Profile = sketch14
pad12.Length = 5

sketch15 = body.newObject("Sketcher::SketchObject", "Sketch014")
sketch15.AttachmentSupport = (doc.getObject("XY_Plane"), [""])
sketch15.MapMode = "FlatFace"
sketch15.AttachmentOffset = App.Placement(App.Vector(0, 0, 39.4), App.Rotation())
sketch15.addGeometry([
    Part.Circle(App.Vector(-15.5, 15.5, 0), App.Vector(0, 0, 1), 1.5),
    Part.Circle(App.Vector(15.5, 15.5, 0), App.Vector(0, 0, 1), 1.5),
    Part.Circle(App.Vector(15.5, -15.5, 0), App.Vector(0, 0, 1), 1.5),
    Part.Circle(App.Vector(-15.5, -15.5, 0), App.Vector(0, 0, 1), 1.5),
], False)
sketch15.addConstraint([
    Sketcher.Constraint("Equal", 0, 1),
    Sketcher.Constraint("Equal", 1, 2),
    Sketcher.Constraint("Equal", 2, 3),
    Sketcher.Constraint("Symmetric", 0, 3, 2, 3, -1, 1),
    Sketcher.Constraint("Symmetric", 1, 3, 3, 3, -1, 1),
    Sketcher.Constraint("Symmetric", 0, 3, 1, 3, -2),
    Sketcher.Constraint("Diameter", 0, Q("3 mm")),
    Sketcher.Constraint("DistanceX", 0, 3, 1, 3, Q("31 mm")),
    Sketcher.Constraint("DistanceY", 2, 3, 1, 3, Q("31 mm")),
])
pocket3 = body.newObject("PartDesign::Pocket", "Pocket002")
pocket3.Profile = sketch15
pocket3.Length = 5.5

sketch16 = body.newObject("Sketcher::SketchObject", "Sketch015")
sketch16.AttachmentSupport = (doc.getObject("XY_Plane"), [""])
sketch16.MapMode = "FlatFace"
sketch16.addGeometry([
    Part.Circle(App.Vector(15.5, 15.5, 0), App.Vector(0, 0, 1), 3.25),
    Part.Circle(App.Vector(-15.5, 15.5, 0), App.Vector(0, 0, 1), 3.25),
    Part.Circle(App.Vector(-15.5, -15.5, 0), App.Vector(0, 0, 1), 3.25),
    Part.Circle(App.Vector(15.5, -15.5, 0), App.Vector(0, 0, 1), 3.25),
], False)
sketch16.addConstraint([
    Sketcher.Constraint("Equal", 0, 1),
    Sketcher.Constraint("Equal", 1, 2),
    Sketcher.Constraint("Equal", 2, 3),
    Sketcher.Constraint("Symmetric", 0, 3, 2, 3, -1, 1),
    Sketcher.Constraint("Symmetric", 1, 3, 3, 3, -1, 1),
    Sketcher.Constraint("Symmetric", 0, 3, 1, 3, -2),
    Sketcher.Constraint("Diameter", 0, Q("6.5 mm")),
    Sketcher.Constraint("DistanceX", 1, 3, 0, 3, Q("31 mm")),
    Sketcher.Constraint("DistanceY", 2, 3, 1, 3, Q("31 mm")),
])
pocket4 = body.newObject("PartDesign::Pocket", "Pocket003")
pocket4.Profile = sketch16
pocket4.Length = 3
pocket4.Reversed = True

sketch17 = body.newObject("Sketcher::SketchObject", "Sketch016")
sketch17.AttachmentSupport = (doc.getObject("XY_Plane"), [""])
sketch17.MapMode = "FlatFace"
sketch17.AttachmentOffset = App.Placement(App.Vector(0, 0, 7), App.Rotation())
sketch17.addGeometry([
    Part.Circle(App.Vector(15.5, 15.5, 0), App.Vector(0, 0, 1), 1.5),
    Part.Circle(App.Vector(-15.5, 15.5, 0), App.Vector(0, 0, 1), 1.5),
    Part.Circle(App.Vector(15.5, -15.5, 0), App.Vector(0, 0, 1), 1.5),
    Part.Circle(App.Vector(-15.5, -15.5, 0), App.Vector(0, 0, 1), 1.5),
], False)
sketch17.addConstraint([
    Sketcher.Constraint("Equal", 0, 1),
    Sketcher.Constraint("Equal", 1, 2),
    Sketcher.Constraint("Equal", 2, 3),
    Sketcher.Constraint("Symmetric", 1, 3, 2, 3, -1, 1),
    Sketcher.Constraint("Symmetric", 0, 3, 3, 3, -1, 1),
    Sketcher.Constraint("Symmetric", 0, 3, 1, 3, -2),
    Sketcher.Constraint("Diameter", 0, Q("3 mm")),
    Sketcher.Constraint("DistanceX", 1, 3, 0, 3, Q("31 mm")),
    Sketcher.Constraint("DistanceY", 2, 3, 0, 3, Q("31 mm")),
])
pocket5 = body.newObject("PartDesign::Pocket", "Pocket004")
pocket5.Profile = sketch17
pocket5.Length = 4

sketch18 = body.newObject("Sketcher::SketchObject", "Sketch017")
sketch18.AttachmentSupport = (doc.getObject("XY_Plane"), [""])
sketch18.MapMode = "FlatFace"
sketch18.addGeometry(Part.Circle(App.Vector(0, 0, 0), App.Vector(0, 0, 1), 4.5), False)
sketch18.addConstraint([
    Sketcher.Constraint("Coincident", 0, 3, -1, 1),
    Sketcher.Constraint("Diameter", 0, Q("9 mm")),
])
pocket6 = body.newObject("PartDesign::Pocket", "Pocket005")
pocket6.Profile = sketch18
pocket6.Length = 4
pocket6.Reversed = True

doc.recompute()
